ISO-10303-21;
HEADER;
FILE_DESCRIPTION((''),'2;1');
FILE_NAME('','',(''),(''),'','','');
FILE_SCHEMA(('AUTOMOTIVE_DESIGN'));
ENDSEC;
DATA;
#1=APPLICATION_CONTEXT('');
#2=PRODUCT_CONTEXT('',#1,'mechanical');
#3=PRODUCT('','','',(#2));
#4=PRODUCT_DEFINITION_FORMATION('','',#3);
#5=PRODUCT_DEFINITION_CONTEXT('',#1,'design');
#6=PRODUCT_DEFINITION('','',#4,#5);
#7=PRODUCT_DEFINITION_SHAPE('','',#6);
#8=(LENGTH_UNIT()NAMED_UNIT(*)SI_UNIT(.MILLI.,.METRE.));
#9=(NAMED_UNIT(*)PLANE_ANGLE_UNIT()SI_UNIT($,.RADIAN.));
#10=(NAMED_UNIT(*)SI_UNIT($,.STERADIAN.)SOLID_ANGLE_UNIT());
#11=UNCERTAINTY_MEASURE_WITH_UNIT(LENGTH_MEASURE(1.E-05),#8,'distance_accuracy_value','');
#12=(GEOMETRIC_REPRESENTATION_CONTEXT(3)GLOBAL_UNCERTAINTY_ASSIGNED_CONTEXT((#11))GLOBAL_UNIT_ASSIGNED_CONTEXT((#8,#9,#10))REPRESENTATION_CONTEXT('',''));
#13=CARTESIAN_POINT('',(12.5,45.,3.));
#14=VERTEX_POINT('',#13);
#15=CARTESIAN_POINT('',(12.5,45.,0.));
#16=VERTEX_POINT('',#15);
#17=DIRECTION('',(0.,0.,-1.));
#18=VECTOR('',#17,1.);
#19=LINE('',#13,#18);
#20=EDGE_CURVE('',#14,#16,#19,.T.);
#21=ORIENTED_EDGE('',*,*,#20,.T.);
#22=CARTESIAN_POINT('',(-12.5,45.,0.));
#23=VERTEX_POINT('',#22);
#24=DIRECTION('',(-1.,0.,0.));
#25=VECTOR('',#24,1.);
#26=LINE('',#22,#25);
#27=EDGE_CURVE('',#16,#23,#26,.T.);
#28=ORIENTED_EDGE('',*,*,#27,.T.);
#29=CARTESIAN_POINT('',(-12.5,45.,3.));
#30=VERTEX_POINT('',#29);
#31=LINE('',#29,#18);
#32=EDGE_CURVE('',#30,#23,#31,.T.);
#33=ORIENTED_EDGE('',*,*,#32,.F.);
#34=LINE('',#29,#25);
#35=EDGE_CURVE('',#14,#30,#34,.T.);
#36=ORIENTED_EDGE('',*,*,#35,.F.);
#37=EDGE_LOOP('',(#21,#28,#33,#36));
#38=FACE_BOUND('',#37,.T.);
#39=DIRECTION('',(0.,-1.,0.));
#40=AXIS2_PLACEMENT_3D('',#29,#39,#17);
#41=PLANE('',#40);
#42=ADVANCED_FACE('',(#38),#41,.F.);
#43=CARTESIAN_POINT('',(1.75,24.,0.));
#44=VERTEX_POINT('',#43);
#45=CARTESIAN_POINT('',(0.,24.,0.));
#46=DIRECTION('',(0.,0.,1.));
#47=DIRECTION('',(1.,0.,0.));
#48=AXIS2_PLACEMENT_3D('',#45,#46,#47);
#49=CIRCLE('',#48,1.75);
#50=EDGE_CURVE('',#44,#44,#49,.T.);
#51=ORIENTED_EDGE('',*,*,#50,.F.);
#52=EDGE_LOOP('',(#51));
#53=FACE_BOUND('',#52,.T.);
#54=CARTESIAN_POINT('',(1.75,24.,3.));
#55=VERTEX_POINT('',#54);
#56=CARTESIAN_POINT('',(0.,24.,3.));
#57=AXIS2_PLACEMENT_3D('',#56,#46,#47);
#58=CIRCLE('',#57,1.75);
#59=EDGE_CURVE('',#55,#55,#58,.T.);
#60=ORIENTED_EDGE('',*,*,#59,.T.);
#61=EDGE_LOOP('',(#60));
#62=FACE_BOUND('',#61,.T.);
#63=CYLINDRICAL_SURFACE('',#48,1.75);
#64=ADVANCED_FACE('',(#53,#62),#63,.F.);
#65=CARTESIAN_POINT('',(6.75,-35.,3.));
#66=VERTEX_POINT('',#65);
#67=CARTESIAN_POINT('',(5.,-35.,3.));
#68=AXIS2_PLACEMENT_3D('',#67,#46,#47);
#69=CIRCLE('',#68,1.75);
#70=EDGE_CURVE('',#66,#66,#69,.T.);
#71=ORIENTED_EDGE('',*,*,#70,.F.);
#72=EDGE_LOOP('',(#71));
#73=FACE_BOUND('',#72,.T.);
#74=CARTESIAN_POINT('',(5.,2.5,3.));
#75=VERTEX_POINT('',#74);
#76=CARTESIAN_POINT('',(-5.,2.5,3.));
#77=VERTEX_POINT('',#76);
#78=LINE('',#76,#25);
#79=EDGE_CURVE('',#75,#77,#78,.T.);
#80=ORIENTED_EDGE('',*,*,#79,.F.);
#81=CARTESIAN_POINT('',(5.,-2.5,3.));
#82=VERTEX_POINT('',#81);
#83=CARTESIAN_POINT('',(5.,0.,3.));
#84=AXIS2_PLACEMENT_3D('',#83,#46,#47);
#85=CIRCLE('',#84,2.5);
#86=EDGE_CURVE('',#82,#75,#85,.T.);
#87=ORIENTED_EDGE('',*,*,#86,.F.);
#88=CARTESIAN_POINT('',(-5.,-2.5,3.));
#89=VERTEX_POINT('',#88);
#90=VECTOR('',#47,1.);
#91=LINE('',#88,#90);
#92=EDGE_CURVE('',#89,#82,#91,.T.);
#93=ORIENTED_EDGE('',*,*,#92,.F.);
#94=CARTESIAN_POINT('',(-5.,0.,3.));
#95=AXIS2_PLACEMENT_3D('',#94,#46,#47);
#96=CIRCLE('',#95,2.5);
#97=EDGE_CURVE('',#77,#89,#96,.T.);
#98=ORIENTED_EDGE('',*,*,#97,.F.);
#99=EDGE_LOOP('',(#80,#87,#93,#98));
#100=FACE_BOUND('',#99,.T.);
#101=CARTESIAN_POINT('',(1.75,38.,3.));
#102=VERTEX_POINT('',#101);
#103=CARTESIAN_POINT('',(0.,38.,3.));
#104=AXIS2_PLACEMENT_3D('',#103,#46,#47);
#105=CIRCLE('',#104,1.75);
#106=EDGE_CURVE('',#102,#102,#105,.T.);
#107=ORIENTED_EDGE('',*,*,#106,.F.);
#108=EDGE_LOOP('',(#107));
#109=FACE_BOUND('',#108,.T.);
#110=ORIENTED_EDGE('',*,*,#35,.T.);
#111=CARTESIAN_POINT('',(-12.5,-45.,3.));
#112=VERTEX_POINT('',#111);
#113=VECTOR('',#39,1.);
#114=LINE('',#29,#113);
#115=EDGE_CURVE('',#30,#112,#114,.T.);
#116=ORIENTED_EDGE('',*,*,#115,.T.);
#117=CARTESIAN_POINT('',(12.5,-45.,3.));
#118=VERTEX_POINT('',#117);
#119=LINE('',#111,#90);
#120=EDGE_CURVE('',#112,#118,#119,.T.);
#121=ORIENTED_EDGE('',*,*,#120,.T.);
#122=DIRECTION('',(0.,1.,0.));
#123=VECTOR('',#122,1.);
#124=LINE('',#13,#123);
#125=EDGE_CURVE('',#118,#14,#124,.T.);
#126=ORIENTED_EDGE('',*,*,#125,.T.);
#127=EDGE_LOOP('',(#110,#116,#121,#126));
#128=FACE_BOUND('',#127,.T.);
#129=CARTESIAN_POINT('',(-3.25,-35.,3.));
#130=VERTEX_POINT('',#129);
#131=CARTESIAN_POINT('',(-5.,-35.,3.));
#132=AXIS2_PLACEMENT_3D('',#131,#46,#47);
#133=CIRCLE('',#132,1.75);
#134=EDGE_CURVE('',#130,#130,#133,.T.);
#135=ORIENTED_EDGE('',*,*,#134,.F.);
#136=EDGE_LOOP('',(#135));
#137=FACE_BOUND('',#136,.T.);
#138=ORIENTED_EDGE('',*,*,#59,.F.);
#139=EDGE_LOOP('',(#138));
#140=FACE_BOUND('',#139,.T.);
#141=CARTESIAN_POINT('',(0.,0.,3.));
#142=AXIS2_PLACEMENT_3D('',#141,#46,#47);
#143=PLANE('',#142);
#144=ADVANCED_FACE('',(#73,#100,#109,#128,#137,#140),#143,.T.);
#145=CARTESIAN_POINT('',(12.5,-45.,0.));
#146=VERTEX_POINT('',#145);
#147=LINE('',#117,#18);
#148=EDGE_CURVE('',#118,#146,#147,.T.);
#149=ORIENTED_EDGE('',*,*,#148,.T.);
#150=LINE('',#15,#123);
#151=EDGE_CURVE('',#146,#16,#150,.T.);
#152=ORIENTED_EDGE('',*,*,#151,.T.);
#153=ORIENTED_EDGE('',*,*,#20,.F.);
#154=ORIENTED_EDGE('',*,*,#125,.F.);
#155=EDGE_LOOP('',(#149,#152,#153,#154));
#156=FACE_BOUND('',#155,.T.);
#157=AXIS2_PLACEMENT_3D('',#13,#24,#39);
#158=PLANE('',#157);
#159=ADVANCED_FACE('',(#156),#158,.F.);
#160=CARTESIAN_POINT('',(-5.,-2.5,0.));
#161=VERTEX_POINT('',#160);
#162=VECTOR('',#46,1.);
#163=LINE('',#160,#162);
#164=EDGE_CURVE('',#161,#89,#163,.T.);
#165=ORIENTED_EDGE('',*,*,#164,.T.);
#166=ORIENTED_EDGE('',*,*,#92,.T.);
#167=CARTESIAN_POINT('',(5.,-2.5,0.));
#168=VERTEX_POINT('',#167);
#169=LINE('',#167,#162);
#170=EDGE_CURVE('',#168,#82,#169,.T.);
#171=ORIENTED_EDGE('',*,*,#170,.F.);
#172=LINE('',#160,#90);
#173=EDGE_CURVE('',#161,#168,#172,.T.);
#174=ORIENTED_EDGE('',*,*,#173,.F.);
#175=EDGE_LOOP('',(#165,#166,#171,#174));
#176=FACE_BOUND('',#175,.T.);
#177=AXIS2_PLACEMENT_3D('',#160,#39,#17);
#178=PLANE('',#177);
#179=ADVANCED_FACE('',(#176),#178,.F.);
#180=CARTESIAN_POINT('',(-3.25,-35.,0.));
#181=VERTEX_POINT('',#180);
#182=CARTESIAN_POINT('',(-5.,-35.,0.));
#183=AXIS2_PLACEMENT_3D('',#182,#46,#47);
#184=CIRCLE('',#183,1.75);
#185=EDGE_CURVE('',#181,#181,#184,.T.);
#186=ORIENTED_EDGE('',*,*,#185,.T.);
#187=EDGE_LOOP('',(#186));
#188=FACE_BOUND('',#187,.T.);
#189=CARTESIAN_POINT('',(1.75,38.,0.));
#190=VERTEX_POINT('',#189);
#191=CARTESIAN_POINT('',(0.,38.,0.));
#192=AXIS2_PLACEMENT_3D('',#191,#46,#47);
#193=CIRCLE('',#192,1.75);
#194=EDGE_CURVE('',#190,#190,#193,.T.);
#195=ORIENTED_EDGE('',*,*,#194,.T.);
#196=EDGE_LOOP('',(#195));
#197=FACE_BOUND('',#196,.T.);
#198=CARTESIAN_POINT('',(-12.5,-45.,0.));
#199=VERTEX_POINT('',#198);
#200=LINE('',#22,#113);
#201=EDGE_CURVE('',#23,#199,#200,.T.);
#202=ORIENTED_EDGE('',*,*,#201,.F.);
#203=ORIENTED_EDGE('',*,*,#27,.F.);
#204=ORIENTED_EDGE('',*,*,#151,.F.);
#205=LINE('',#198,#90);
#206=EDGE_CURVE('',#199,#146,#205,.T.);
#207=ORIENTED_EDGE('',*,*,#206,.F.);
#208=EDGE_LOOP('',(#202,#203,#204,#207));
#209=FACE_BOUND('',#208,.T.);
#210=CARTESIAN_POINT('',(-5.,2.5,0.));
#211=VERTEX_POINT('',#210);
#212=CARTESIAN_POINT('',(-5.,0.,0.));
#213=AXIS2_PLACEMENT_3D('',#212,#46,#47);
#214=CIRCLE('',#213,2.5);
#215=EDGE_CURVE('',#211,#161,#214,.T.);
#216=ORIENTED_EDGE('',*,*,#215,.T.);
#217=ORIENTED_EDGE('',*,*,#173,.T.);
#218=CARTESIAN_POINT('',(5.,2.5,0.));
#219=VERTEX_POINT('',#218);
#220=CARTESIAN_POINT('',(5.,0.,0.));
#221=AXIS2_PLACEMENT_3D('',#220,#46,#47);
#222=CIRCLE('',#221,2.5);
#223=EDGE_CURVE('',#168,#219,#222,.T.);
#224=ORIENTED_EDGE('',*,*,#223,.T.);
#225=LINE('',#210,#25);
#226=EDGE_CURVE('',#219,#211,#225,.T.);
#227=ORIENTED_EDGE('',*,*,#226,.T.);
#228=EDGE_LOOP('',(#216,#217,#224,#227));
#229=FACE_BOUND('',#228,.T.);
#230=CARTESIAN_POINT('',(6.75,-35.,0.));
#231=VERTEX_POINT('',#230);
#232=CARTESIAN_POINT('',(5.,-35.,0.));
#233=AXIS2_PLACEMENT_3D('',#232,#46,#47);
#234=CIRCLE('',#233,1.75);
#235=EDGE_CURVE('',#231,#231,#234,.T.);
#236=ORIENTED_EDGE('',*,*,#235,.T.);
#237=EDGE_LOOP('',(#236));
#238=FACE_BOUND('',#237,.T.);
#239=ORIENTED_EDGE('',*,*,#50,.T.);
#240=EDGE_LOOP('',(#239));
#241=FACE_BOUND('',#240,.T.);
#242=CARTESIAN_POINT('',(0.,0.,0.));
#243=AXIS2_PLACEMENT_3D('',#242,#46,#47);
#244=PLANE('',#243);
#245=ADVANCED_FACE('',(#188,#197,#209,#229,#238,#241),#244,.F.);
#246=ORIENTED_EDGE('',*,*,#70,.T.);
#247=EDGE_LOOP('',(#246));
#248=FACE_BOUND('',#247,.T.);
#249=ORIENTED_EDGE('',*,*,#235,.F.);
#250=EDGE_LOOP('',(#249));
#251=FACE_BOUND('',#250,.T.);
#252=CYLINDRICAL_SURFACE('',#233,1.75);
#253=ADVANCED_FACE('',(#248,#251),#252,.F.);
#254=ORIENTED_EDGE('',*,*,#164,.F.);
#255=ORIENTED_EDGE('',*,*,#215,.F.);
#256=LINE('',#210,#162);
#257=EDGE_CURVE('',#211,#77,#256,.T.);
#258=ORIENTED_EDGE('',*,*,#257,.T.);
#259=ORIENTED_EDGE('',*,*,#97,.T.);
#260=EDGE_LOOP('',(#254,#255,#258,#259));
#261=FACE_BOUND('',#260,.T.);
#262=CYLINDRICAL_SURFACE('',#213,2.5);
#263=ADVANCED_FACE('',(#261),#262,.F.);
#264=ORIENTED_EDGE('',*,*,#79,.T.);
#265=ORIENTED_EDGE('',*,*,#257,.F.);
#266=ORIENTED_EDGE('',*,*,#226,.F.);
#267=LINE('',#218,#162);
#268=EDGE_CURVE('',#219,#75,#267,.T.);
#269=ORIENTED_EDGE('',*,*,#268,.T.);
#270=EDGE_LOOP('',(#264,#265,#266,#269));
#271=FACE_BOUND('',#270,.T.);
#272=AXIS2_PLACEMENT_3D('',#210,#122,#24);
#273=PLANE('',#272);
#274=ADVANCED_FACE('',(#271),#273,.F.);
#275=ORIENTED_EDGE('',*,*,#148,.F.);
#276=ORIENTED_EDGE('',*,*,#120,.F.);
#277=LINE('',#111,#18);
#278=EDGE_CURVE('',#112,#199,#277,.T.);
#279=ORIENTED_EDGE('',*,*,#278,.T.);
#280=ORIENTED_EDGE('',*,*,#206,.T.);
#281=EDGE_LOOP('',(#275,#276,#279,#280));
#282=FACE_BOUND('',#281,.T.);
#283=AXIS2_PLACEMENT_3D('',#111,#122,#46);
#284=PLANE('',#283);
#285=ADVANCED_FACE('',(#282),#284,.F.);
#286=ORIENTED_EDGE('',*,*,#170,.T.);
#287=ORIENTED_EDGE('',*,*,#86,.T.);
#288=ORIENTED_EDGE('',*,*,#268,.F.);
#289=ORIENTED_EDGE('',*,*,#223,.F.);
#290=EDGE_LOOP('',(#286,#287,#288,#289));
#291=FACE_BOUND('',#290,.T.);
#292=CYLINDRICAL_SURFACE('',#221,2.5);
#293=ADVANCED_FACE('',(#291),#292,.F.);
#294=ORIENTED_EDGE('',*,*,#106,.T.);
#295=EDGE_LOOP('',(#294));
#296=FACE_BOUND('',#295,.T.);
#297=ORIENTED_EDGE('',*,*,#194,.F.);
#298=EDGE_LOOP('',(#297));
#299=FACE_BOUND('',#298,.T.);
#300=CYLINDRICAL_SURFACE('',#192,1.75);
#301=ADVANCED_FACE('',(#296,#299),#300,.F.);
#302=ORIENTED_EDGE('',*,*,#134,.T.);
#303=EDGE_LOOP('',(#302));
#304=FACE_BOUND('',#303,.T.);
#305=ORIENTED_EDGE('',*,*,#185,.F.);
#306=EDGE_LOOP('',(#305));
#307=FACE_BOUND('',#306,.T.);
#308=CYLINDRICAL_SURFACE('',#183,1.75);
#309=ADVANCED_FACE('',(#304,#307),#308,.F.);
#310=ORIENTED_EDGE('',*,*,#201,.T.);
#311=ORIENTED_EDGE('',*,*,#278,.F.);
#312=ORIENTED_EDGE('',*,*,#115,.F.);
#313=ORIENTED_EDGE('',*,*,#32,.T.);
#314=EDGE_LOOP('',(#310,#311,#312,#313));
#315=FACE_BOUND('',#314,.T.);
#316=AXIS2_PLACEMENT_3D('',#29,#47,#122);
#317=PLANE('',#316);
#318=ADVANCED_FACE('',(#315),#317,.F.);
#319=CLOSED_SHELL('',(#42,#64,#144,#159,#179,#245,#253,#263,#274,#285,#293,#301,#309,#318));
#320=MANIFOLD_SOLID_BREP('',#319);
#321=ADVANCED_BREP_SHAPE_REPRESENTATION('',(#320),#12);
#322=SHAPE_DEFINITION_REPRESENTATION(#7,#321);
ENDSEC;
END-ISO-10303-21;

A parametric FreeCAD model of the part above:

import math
import FreeCAD as App
import Part
import Sketcher

doc = App.newDocument("Part")
body = doc.addObject("PartDesign::Body", "Body")

# Sketch on XY plane
sketch1 = doc.addObject("Sketcher::SketchObject", "Sketch")
body.addObject(sketch1)
sketch1.AttachmentSupport = (doc.XY_Plane, [""])
sketch1.MapMode = "FlatFace"
sketch1.addGeometry(Part.LineSegment(App.Vector(-12, 45, 0), App.Vector(-12, -45, 0)), False)
sketch1.addGeometry(Part.LineSegment(App.Vector(-12, -45, 0), App.Vector(12, -45, 0)), False)
sketch1.addGeometry(Part.LineSegment(App.Vector(12, -45, 0), App.Vector(12, 45, 0)), False)
sketch1.addGeometry(Part.LineSegment(App.Vector(12, 45, 0), App.Vector(-12, 45, 0)), False)
sketch1.addConstraint(Sketcher.Constraint("Coincident", 0, 2, 1, 1))
sketch1.addConstraint(Sketcher.Constraint("Coincident", 1, 2, 2, 1))
sketch1.addConstraint(Sketcher.Constraint("Coincident", 2, 2, 3, 1))
sketch1.addConstraint(Sketcher.Constraint("Coincident", 3, 2, 0, 1))
sketch1.addConstraint(Sketcher.Constraint("Vertical", 0))
sketch1.addConstraint(Sketcher.Constraint("Horizontal", 1))
sketch1.addConstraint(Sketcher.Constraint("Vertical", 2))
sketch1.addConstraint(Sketcher.Constraint("Horizontal", 3))
sketch1.addConstraint(Sketcher.Constraint("Symmetric", 0, 2, 2, 2, -1, 1))
sketch1.addConstraint(Sketcher.Constraint("DistanceX", 1, 1, 1, 2, 25.0))
sketch1.addConstraint(Sketcher.Constraint("DistanceY", 0, 2, 0, 1, 90.0))
pad1 = doc.addObject("PartDesign::Pad", "Pad")
body.addObject(pad1)
pad1.Profile = sketch1
pad1.Length = 3

# Sketch on XY plane
sketch2 = doc.addObject("Sketcher::SketchObject", "Sketch001")
body.addObject(sketch2)
sketch2.AttachmentSupport = (doc.XY_Plane, [""])
sketch2.MapMode = "FlatFace"
sketch2.AttachmentOffset = App.Placement(App.Vector(0, 0, 3), App.Rotation())
sketch2.addGeometry(Part.Circle(App.Vector(0, 38, 0), App.Vector(0, 0, 1), 1.8), False)
sketch2.addGeometry(Part.Circle(App.Vector(0, 24, 0), App.Vector(0, 0, 1), 1.8), False)
sketch2.addGeometry(Part.Circle(App.Vector(-5, -35, 0), App.Vector(0, 0, 1), 1.8), False)
sketch2.addGeometry(Part.Circle(App.Vector(5, -35, 0), App.Vector(0, 0, 1), 1.8), False)
sketch2.addConstraint(Sketcher.Constraint("Equal", 0, 1))
sketch2.addConstraint(Sketcher.Constraint("Equal", 1, 2))
sketch2.addConstraint(Sketcher.Constraint("Equal", 2, 3))
sketch2.addConstraint(Sketcher.Constraint("Symmetric", 2, 3, 3, 3, -2))
sketch2.addConstraint(Sketcher.Constraint("PointOnObject", 0, 3, -2))
sketch2.addConstraint(Sketcher.Constraint("PointOnObject", 1, 3, -2))
sketch2.addConstraint(Sketcher.Constraint("Diameter", 0, 3.5))
sketch2.addConstraint(Sketcher.Constraint("DistanceY", -1, 1, 0, 3, 38.0))
sketch2.addConstraint(Sketcher.Constraint("DistanceY", -1, 1, 1, 3, 24.0))
sketch2.addConstraint(Sketcher.Constraint("DistanceX", 2, 3, -1, 1, 5.0))
sketch2.addConstraint(Sketcher.Constraint("DistanceY", 2, 3, -1, 1, 35.0))
pocket1 = doc.addObject("PartDesign::Pocket", "Pocket")
body.addObject(pocket1)
pocket1.Profile = sketch2
pocket1.Type = "ThroughAll"

# Sketch on XY plane
sketch3 = doc.addObject("Sketcher::SketchObject", "Sketch002")
body.addObject(sketch3)
sketch3.AttachmentSupport = (doc.XY_Plane, [""])
sketch3.MapMode = "FlatFace"
sketch3.AttachmentOffset = App.Placement(App.Vector(0, 0, 3), App.Rotation())
sketch3.addGeometry(Part.LineSegment(App.Vector(5, 2.5, 0), App.Vector(-5, 2.5, 0)), False)
sketch3.addGeometry(Part.ArcOfCircle(Part.Circle(App.Vector(-5, 0, 0), App.Vector(0, 0, 1), 2.5), math.radians(90), math.radians(270)), False)
sketch3.addGeometry(Part.LineSegment(App.Vector(-5, -2.5, 0), App.Vector(5, -2.5, 0)), False)
sketch3.addGeometry(Part.ArcOfCircle(Part.Circle(App.Vector(5, 0, 0), App.Vector(0, 0, 1), 2.5), math.radians(-90), math.radians(90)), False)
sketch3.addConstraint(Sketcher.Constraint("Tangent", 0, 2, 1, 1))
sketch3.addConstraint(Sketcher.Constraint("Tangent", 1, 2, 2, 1))
sketch3.addConstraint(Sketcher.Constraint("Tangent", 2, 2, 3, 1))
sketch3.addConstraint(Sketcher.Constraint("Tangent", 3, 2, 0, 1))
sketch3.addConstraint(Sketcher.Constraint("Horizontal", 0))
sketch3.addConstraint(Sketcher.Constraint("Horizontal", 2))
sketch3.addConstraint(Sketcher.Constraint("Symmetric", 1, 3, 3, 3, -1, 1))
sketch3.addConstraint(Sketcher.Constraint("Radius", 1, 2.5))
sketch3.addConstraint(Sketcher.Constraint("DistanceX", 0, 2, 0, 1, 10.0))
pocket2 = doc.addObject("PartDesign::Pocket", "Pocket001")
body.addObject(pocket2)
pocket2.Profile = sketch3
pocket2.Type = "ThroughAll"

doc.recompute()
